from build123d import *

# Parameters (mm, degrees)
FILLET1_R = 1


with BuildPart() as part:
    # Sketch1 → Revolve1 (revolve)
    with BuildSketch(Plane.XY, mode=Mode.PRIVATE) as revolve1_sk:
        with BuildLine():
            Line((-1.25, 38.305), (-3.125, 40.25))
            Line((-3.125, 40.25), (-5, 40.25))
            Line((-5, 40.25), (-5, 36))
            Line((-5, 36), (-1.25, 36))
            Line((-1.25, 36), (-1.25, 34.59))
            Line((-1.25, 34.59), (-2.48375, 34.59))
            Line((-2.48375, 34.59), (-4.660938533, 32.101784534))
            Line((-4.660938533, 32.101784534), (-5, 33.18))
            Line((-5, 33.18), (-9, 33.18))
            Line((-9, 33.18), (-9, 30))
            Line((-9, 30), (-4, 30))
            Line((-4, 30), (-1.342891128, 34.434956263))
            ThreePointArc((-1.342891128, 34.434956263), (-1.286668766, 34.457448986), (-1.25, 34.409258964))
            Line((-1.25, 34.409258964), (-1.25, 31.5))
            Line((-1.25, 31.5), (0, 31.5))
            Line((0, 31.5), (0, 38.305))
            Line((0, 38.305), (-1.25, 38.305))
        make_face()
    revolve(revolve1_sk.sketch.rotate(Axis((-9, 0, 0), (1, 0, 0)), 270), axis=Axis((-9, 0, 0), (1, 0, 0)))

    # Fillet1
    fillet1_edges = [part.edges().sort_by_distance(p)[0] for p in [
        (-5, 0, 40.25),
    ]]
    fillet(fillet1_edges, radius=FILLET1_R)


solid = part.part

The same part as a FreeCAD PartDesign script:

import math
import FreeCAD as App
import Part
import Sketcher

V = App.Vector
Q = App.Units.Quantity


def edges_at(feature, points):
    """Names of the edges that pass closest to the given points."""
    edges = feature.Shape.Edges
    near = lambda p: min(range(len(edges)), key=lambda i: edges[i].distToShape(Part.Vertex(*p))[0])
    return sorted({f"Edge{near(p) + 1}" for p in points})

doc = App.newDocument("Part")
body = doc.addObject("PartDesign::Body", "Body")

sketch1 = body.newObject("Sketcher::SketchObject", "Sketch")
sketch1.AttachmentSupport = (doc.getObject("XY_Plane"), [""])
sketch1.MapMode = "FlatFace"
sketch1.addGeometry(Part.LineSegment(V(-1.25, 38.3, 0), V(-3.12, 40.25, 0)), False)
sketch1.addGeometry(Part.LineSegment(V(-3.12, 40.25, 0), V(-5, 40.25, 0)), False)
sketch1.addGeometry(Part.LineSegment(V(-5, 40.25, 0), V(-5, 36, 0)), False)
sketch1.addGeometry(Part.LineSegment(V(-5, 36, 0), V(-1.25, 36, 0)), False)
sketch1.addGeometry(Part.LineSegment(V(-1.25, 36, 0), V(-1.25, 34.59, 0)), False)
sketch1.addGeometry(Part.LineSegment(V(-1.25, 34.59, 0), V(-2.48, 34.59, 0)), False)
sketch1.addGeometry(Part.LineSegment(V(-2.48, 34.59, 0), V(-4.66, 32.1, 0)), False)
sketch1.addGeometry(Part.LineSegment(V(-4.66, 32.1, 0), V(-5, 33.18, 0)), False)
sketch1.addGeometry(Part.LineSegment(V(-5, 33.18, 0), V(-9, 33.18, 0)), False)
sketch1.addGeometry(Part.LineSegment(V(-9, 33.18, 0), V(-9, 30, 0)), False)
sketch1.addGeometry(Part.LineSegment(V(-9, 30, 0), V(-4, 30, 0)), False)
sketch1.addGeometry(Part.LineSegment(V(-4, 30, 0), V(-1.34, 34.43, 0)), False)
sketch1.addGeometry(Part.ArcOfCircle(Part.Circle(V(-1.3, 34.41, 0), V(0, 0, 1), 0.05), math.radians(0), math.radians(149)), False)
sketch1.addGeometry(Part.LineSegment(V(-1.25, 34.41, 0), V(-1.25, 31.5, 0)), False)
sketch1.addGeometry(Part.LineSegment(V(-1.25, 31.5, 0), V(0, 31.5, 0)), False)
sketch1.addGeometry(Part.LineSegment(V(0, 31.5, 0), V(0, 38.3, 0)), False)
sketch1.addGeometry(Part.LineSegment(V(0, 38.3, 0), V(-1.25, 38.3, 0)), False)
sketch1.addConstraint(Sketcher.Constraint("Coincident", 0, 2, 1, 1))
sketch1.addConstraint(Sketcher.Constraint("Coincident", 1, 2, 2, 1))
sketch1.addConstraint(Sketcher.Constraint("Coincident", 2, 2, 3, 1))
sketch1.addConstraint(Sketcher.Constraint("Coincident", 3, 2, 4, 1))
sketch1.addConstraint(Sketcher.Constraint("Coincident", 4, 2, 5, 1))
sketch1.addConstraint(Sketcher.Constraint("Coincident", 5, 2, 6, 1))
sketch1.addConstraint(Sketcher.Constraint("Coincident", 6, 2, 7, 1))
sketch1.addConstraint(Sketcher.Constraint("Coincident", 7, 2, 8, 1))
sketch1.addConstraint(Sketcher.Constraint("Coincident", 8, 2, 9, 1))
sketch1.addConstraint(Sketcher.Constraint("Coincident", 9, 2, 10, 1))
sketch1.addConstraint(Sketcher.Constraint("Coincident", 10, 2, 11, 1))
sketch1.addConstraint(Sketcher.Constraint("Tangent", 11, 2, 12, 2))
sketch1.addConstraint(Sketcher.Constraint("Tangent", 12, 1, 13, 1))
sketch1.addConstraint(Sketcher.Constraint("Coincident", 13, 2, 14, 1))
sketch1.addConstraint(Sketcher.Constraint("Coincident", 14, 2, 15, 1))
sketch1.addConstraint(Sketcher.Constraint("Coincident", 15, 2, 16, 1))
sketch1.addConstraint(Sketcher.Constraint("Coincident", 16, 2, 0, 1))
sketch1.addConstraint(Sketcher.Constraint("Horizontal", 1))
sketch1.addConstraint(Sketcher.Constraint("Vertical", 2))
sketch1.addConstraint(Sketcher.Constraint("Horizontal", 3))
sketch1.addConstraint(Sketcher.Constraint("Vertical", 4))
sketch1.addConstraint(Sketcher.Constraint("Horizontal", 5))
sketch1.addConstraint(Sketcher.Constraint("Horizontal", 8))
sketch1.addConstraint(Sketcher.Constraint("Vertical", 9))
sketch1.addConstraint(Sketcher.Constraint("Horizontal", 10))
sketch1.addConstraint(Sketcher.Constraint("Vertical", 13))
sketch1.addConstraint(Sketcher.Constraint("Horizontal", 14))
sketch1.addConstraint(Sketcher.Constraint("Vertical", 15))
sketch1.addConstraint(Sketcher.Constraint("Horizontal", 16))
sketch1.addConstraint(Sketcher.Constraint("PointOnObject", 14, 2, -2))
sketch1.addConstraint(Sketcher.Constraint("Vertical", 2, 2, 7, 2))
sketch1.addConstraint(Sketcher.Constraint("Vertical", 4, 2, 12, 1))
sketch1.addConstraint(Sketcher.Constraint("Vertical", 13, 2, 16, 2))
sketch1.addConstraint(Sketcher.Constraint("DistanceX", 8, 2, 8, 1, Q("4 mm")))
sketch1.addConstraint(Sketcher.Constraint("DistanceX", 10, 1, 10, 2, Q("5 mm")))
sketch1.addConstraint(Sketcher.Constraint("Radius", 12, Q("0.05 mm")))
sketch1.addConstraint(Sketcher.Constraint("DistanceX", 1, 2, -1, 1, Q("5 mm")))
sketch1.addConstraint(Sketcher.Constraint("DistanceY", -1, 1, 2, 2, Q("36 mm")))
sketch1.addConstraint(Sketcher.Constraint("DistanceY", -1, 1, 9, 2, Q("30 mm")))
sketch1.addConstraint(Sketcher.Constraint("DistanceX", 3, 1, 3, 2, Q("3.75 mm")))
sketch1.addConstraint(Sketcher.Constraint("DistanceY", 2, 2, 2, 1, Q("4.25 mm")))
sketch1.addConstraint(Sketcher.Constraint("DistanceY", 4, 2, 4, 1, Q("1.41 mm")))
sketch1.addConstraint(Sketcher.Constraint("DistanceY", 9, 2, 9, 1, Q("3.18 mm")))
sketch1.addConstraint(Sketcher.Constraint("DistanceY", -1, 1, 13, 2, Q("31.5 mm")))
sketch1.addConstraint(Sketcher.Constraint("DistanceX", 1, 2, 1, 1, Q("1.875 mm")))
sketch1.addConstraint(Sketcher.Constraint("DistanceY", 15, 1, 15, 2, Q("6.805 mm")))
sketch1.addConstraint(Sketcher.Constraint("DistanceX", 5, 2, 5, 1, Q("1.23375 mm")))
sketch1.addConstraint(Sketcher.Constraint("DistanceY", 13, 2, 13, 1, Q("2.909259 mm")))
sketch1.addConstraint(Sketcher.Constraint("Distance", 6, Q("3.306262 mm")))
sketch1.addConstraint(Sketcher.Constraint("Distance", 7, Q("1.13027 mm")))
revolution = body.newObject("PartDesign::Revolution", "Revolution")
revolution.Profile = sketch1
revolution.ReferenceAxis = (sketch1, ["H_Axis"])
revolution.Angle = 360
doc.recompute()

fillet = body.newObject("PartDesign::Fillet", "Fillet")
fillet.Base = (revolution, edges_at(revolution, [(-5, 0, 40.25)]))
fillet.Radius = 1

doc.recompute()
